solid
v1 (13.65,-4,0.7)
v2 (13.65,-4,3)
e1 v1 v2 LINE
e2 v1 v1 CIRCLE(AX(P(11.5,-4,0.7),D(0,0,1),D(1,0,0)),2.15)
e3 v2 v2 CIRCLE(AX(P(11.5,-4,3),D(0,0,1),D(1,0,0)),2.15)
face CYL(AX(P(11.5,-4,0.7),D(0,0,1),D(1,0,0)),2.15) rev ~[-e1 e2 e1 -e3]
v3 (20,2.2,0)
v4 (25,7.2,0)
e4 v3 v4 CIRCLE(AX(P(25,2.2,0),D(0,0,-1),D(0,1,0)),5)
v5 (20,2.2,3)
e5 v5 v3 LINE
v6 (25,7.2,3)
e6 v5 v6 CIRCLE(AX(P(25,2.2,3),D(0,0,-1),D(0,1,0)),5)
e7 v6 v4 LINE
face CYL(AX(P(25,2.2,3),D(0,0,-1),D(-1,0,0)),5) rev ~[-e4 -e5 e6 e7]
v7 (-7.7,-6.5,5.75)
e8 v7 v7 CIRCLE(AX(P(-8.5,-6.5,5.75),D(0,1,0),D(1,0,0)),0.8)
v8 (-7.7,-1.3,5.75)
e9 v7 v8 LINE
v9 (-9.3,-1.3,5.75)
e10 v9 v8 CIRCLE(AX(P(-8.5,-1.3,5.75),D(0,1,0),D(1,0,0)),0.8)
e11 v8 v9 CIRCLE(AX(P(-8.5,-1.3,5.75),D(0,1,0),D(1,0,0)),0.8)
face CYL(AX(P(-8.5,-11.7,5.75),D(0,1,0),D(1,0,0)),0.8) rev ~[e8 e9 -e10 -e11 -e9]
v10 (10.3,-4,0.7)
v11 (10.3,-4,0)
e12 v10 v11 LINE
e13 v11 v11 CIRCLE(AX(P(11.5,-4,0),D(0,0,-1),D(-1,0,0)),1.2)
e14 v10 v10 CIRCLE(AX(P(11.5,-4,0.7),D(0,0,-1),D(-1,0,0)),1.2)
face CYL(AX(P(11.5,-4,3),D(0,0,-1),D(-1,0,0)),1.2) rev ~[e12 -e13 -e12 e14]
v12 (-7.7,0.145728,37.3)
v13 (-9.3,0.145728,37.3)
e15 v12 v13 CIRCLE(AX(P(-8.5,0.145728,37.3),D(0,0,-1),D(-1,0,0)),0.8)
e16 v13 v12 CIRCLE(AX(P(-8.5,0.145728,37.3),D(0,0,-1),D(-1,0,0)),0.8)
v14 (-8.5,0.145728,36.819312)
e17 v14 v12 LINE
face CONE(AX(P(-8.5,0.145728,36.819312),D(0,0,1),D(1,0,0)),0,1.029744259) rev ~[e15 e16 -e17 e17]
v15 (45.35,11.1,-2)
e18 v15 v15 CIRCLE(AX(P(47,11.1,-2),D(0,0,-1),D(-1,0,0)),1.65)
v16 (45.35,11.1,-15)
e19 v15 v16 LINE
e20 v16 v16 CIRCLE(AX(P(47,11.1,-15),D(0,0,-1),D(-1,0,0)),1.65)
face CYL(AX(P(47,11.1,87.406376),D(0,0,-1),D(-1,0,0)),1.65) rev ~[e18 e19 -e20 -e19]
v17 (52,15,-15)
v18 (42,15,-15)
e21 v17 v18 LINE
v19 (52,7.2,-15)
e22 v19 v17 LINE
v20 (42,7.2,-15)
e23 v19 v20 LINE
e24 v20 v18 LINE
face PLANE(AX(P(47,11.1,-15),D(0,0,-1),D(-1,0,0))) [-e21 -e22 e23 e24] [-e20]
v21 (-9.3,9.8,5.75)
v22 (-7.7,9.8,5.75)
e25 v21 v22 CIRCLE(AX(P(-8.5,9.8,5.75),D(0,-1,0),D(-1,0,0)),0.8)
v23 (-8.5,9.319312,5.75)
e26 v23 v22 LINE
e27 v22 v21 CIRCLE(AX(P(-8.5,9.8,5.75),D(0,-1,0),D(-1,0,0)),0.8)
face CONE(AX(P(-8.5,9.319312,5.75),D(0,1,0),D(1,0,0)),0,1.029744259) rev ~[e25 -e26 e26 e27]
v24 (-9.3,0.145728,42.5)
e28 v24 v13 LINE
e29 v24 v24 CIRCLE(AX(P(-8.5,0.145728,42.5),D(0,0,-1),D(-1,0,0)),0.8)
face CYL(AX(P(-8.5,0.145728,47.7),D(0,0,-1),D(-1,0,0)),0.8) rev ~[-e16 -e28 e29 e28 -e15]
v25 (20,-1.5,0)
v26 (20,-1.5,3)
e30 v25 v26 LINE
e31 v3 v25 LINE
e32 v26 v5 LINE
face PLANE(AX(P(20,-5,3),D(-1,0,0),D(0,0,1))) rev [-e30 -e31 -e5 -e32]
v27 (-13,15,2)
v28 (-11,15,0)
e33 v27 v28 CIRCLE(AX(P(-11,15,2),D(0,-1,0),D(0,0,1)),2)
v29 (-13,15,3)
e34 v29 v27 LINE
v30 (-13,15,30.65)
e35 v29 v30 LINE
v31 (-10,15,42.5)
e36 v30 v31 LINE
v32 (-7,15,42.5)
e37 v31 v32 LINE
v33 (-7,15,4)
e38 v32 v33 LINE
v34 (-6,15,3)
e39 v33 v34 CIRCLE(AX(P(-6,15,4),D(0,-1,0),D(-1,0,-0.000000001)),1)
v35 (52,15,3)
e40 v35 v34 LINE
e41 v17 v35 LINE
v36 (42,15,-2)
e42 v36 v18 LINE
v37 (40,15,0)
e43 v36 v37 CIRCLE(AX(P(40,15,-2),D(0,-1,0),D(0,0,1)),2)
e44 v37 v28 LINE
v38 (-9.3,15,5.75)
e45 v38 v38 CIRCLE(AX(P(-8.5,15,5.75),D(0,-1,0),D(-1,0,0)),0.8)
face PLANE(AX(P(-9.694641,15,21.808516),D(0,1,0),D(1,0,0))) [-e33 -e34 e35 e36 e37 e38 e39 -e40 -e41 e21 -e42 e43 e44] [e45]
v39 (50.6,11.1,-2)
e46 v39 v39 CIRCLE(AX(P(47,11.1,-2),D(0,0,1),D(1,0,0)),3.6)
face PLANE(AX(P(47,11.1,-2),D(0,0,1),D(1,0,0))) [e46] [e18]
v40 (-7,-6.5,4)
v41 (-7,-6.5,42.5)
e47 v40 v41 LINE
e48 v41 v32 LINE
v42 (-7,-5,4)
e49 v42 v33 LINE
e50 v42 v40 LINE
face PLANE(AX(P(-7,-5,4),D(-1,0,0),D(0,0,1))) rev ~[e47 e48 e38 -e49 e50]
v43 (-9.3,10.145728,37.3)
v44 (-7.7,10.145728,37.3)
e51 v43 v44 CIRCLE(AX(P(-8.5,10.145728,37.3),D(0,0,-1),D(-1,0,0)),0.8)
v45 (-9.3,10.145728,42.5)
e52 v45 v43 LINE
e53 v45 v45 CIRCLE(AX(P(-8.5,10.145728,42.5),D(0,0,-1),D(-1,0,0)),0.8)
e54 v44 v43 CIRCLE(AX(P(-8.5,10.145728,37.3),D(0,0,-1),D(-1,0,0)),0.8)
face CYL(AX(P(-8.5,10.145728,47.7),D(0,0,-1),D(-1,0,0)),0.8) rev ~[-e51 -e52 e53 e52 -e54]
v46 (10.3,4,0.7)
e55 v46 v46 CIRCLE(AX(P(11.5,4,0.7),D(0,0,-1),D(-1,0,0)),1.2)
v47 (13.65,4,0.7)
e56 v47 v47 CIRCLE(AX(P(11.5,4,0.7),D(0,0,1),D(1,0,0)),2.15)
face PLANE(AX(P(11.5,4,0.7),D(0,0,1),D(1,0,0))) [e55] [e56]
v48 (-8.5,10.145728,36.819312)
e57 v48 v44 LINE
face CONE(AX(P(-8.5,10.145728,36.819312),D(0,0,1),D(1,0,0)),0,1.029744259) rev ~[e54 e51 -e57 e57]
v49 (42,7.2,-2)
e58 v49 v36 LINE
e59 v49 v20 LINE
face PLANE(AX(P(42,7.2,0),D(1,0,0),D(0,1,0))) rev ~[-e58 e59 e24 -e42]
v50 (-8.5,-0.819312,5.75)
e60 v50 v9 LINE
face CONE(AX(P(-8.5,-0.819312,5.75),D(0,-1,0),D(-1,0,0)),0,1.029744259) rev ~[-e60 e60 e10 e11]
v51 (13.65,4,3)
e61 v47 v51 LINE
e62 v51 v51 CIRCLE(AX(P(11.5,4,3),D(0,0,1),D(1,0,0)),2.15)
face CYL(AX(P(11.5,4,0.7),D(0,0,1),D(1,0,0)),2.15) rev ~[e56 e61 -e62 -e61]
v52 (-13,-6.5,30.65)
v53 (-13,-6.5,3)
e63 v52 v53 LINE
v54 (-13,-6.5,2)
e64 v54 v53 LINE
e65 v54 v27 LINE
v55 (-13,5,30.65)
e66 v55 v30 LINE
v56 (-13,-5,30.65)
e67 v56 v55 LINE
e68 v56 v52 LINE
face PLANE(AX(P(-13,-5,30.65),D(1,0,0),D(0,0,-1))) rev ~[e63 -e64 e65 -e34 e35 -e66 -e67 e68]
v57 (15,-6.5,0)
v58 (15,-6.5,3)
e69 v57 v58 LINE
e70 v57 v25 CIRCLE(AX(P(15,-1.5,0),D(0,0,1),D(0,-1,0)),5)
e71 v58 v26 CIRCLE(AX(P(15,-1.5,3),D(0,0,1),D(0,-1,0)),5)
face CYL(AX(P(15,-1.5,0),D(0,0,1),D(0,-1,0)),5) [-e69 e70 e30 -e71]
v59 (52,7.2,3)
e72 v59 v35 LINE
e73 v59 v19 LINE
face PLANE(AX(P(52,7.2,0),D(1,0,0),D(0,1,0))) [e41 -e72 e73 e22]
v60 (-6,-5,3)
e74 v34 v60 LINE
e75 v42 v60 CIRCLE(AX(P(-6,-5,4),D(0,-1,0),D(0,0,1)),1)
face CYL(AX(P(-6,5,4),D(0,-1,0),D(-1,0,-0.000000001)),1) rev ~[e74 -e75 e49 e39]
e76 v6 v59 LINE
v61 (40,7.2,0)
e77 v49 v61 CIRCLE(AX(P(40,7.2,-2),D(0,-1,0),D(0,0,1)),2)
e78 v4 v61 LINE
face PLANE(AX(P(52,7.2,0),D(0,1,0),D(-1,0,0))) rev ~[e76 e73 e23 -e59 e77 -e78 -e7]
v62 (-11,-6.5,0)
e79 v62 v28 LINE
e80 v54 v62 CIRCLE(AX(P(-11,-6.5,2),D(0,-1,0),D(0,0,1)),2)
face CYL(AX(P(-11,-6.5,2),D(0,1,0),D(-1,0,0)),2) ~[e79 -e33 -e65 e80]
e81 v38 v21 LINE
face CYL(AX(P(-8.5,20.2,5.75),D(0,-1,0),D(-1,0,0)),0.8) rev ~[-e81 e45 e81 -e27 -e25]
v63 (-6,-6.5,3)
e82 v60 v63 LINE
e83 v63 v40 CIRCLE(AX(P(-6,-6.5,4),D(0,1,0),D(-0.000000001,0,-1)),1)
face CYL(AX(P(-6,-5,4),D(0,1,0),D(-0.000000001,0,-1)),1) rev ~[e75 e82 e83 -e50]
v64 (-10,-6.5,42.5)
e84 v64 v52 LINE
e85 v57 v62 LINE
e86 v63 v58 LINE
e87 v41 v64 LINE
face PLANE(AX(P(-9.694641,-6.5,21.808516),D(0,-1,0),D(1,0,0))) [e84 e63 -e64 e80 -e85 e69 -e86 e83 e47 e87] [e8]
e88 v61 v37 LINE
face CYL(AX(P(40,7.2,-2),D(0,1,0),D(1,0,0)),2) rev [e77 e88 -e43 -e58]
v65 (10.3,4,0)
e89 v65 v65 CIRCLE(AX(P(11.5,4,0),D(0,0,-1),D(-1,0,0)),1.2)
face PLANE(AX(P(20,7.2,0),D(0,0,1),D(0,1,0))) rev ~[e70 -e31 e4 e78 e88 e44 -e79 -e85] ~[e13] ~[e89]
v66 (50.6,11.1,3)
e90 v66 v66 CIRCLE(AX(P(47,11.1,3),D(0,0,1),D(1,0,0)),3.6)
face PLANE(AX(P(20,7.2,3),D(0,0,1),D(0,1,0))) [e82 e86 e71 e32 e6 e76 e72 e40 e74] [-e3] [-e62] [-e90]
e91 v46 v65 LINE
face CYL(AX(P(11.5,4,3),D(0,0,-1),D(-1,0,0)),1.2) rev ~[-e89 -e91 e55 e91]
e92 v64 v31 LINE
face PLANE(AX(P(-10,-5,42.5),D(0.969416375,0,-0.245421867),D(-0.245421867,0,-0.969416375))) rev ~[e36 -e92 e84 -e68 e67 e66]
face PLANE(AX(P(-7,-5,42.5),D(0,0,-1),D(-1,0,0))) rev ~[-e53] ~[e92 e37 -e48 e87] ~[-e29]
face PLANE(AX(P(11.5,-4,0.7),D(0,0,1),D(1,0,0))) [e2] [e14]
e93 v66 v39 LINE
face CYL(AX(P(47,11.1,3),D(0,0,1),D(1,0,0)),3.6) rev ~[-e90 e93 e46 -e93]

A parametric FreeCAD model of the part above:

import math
import FreeCAD as App
import Part
import Sketcher
Q = App.Units.Quantity


def edges_at(feature, points):
    """Names of the edges that pass closest to the given points."""
    edges = feature.Shape.Edges
    near = lambda p: min(range(len(edges)), key=lambda i: edges[i].distToShape(Part.Vertex(*p))[0])
    return sorted({f"Edge{near(p) + 1}" for p in points})


def add_polygon(sketch, points):
    """Adds a closed chain of lines whose ends are joined by coincident constraints."""
    first, n = sketch.GeometryCount, len(points)
    for a, b in zip(points, points[1:] + points[:1]):
        sketch.addGeometry(Part.LineSegment(App.Vector(*a, 0), App.Vector(*b, 0)), False)
    for i in range(n):
        sketch.addConstraint(Sketcher.Constraint("Coincident", first + i, 2, first + (i + 1) % n, 1))

doc = App.newDocument("Part")
body = doc.addObject("PartDesign::Body", "Body")

# Sketch on XY plane
sketch1 = body.newObject("Sketcher::SketchObject", "Sketch")
sketch1.AttachmentSupport = (doc.getObject("XY_Plane"), [""])
sketch1.MapMode = "FlatFace"
add_polygon(sketch1, [(-20, 5), (-20, -5), (20, -5), (20, 5)])  # lines 0-3
sketch1.addConstraint([
    Sketcher.Constraint("Vertical", 0),
    Sketcher.Constraint("Horizontal", 1),
    Sketcher.Constraint("Vertical", 2),
    Sketcher.Constraint("Horizontal", 3),
    Sketcher.Constraint("Symmetric", 0, 2, 2, 2, -1, 1),
    Sketcher.Constraint("DistanceX", 1, 1, 1, 2, Q("40 mm")),
    Sketcher.Constraint("DistanceY", 0, 2, 0, 1, Q("10 mm")),
])
pad1 = body.newObject("PartDesign::Pad", "Pad")
pad1.Profile = sketch1
pad1.Length = 3

# Sketch on XY plane
sketch2 = body.newObject("Sketcher::SketchObject", "Sketch001")
sketch2.AttachmentSupport = (doc.getObject("XY_Plane"), [""])
sketch2.MapMode = "FlatFace"
sketch2.AttachmentOffset = App.Placement(App.Vector(0, 0, 3), App.Rotation())
add_polygon(sketch2, [(-10, 5), (-10, -5), (-7, -5), (-7, 5)])  # lines 0-3
sketch2.addConstraint([
    Sketcher.Constraint("Vertical", 0),
    Sketcher.Constraint("Horizontal", 1),
    Sketcher.Constraint("Vertical", 2),
    Sketcher.Constraint("Horizontal", 3),
    Sketcher.Constraint("DistanceX", 1, 1, 1, 2, Q("3 mm")),
    Sketcher.Constraint("DistanceY", 0, 2, 0, 1, Q("10 mm")),
    Sketcher.Constraint("DistanceX", 0, 2, -1, 1, Q("10 mm")),
    Sketcher.Constraint("DistanceY", 0, 2, -1, 1, Q("5 mm")),
])
pad2 = body.newObject("PartDesign::Pad", "Pad001")
pad2.Profile = sketch2
pad2.Length = 39.5

# Sketch on XZ plane
sketch3 = body.newObject("Sketcher::SketchObject", "Sketch002")
sketch3.AttachmentSupport = (doc.getObject("XZ_Plane"), [""])
sketch3.MapMode = "FlatFace"
sketch3.AttachmentOffset = App.Placement(App.Vector(0, 0, -5), App.Rotation())
add_polygon(sketch3, [(-20, 3), (-10, 42.5), (-10, 30.3), (-16.9, 3)])  # lines 0-3
sketch3.addConstraint([
    Sketcher.Constraint("Vertical", 1),
    Sketcher.Constraint("Horizontal", 3),
    Sketcher.Constraint("Parallel", 0, 2),
    Sketcher.Constraint("DistanceX", 0, 2, -1, 1, Q("10 mm")),
    Sketcher.Constraint("DistanceY", -1, 1, 2, 2, Q("3 mm")),
    Sketcher.Constraint("DistanceX", 3, 2, -1, 1, Q("20 mm")),
    Sketcher.Constraint("DistanceY", -1, 1, 0, 2, Q("42.5 mm")),
    Sketcher.Constraint("DistanceY", 1, 2, 1, 1, Q("12.22385 mm")),
])
pad3 = body.newObject("PartDesign::Pad", "Pad002")
pad3.Profile = sketch3
pad3.Length = 10
doc.recompute()

fillet = body.newObject("PartDesign::Fillet", "Fillet")
fillet.Base = (pad3, edges_at(pad3, [(-7, 0, 3)]))
fillet.Radius = 1

# Sketch on XZ plane
sketch4 = body.newObject("Sketcher::SketchObject", "Sketch003")
sketch4.AttachmentSupport = (doc.getObject("XZ_Plane"), [""])
sketch4.MapMode = "FlatFace"
sketch4.AttachmentOffset = App.Placement(App.Vector(0, 0, -5), App.Rotation())
add_polygon(sketch4, [(-20, 0), (-20, 3), (20, 3), (20, 0)])  # lines 0-3
sketch4.addConstraint([
    Sketcher.Constraint("Vertical", 0),
    Sketcher.Constraint("Horizontal", 1),
    Sketcher.Constraint("Vertical", 2),
    Sketcher.Constraint("Horizontal", 3),
    Sketcher.Constraint("Symmetric", 2, 2, 3, 2, -1, 1),
    Sketcher.Constraint("DistanceX", 1, 1, 1, 2, Q("40 mm")),
    Sketcher.Constraint("DistanceY", 0, 1, 0, 2, Q("3 mm")),
])
pad4 = body.newObject("PartDesign::Pad", "Pad003")
pad4.Profile = sketch4
pad4.Length = 10
pad4.Reversed = True
doc.recompute()

mirrored = body.newObject("PartDesign::Mirrored", "Mirrored")
mirrored.Originals = [pad4]
mirrored.MirrorPlane = (doc.getObject("XZ_Plane"), [""])
body.Tip = mirrored

# Sketch on XY plane
sketch5 = body.newObject("Sketcher::SketchObject", "Sketch004")
sketch5.AttachmentSupport = (doc.getObject("XY_Plane"), [""])
sketch5.MapMode = "FlatFace"
sketch5.AttachmentOffset = App.Placement(App.Vector(0, 0, 3), App.Rotation())
sketch5.addGeometry([
    Part.Circle(App.Vector(11.5, 4, 0), App.Vector(0, 0, 1), 1.2),
    Part.Circle(App.Vector(11.5, -4, 0), App.Vector(0, 0, 1), 1.2),
], False)
sketch5.addConstraint([
    Sketcher.Constraint("Equal", 0, 1),
    Sketcher.Constraint("Symmetric", 0, 3, 1, 3, -1),
    Sketcher.Constraint("Diameter", 0, Q("2.4 mm")),
    Sketcher.Constraint("DistanceY", -1, 1, 0, 3, Q("4 mm")),
    Sketcher.Constraint("DistanceX", -1, 1, 0, 3, Q("11.5 mm")),
])
doc.recompute()
hole = body.newObject("PartDesign::Hole", "Hole")
hole.Profile = sketch5
hole.ThreadType = "None"
hole.Diameter = 2.4
hole.DepthType = "Dimension"
hole.Depth = 3.2
hole.DrillPoint = "Angled"
hole.DrillPointAngle = 118
hole.HoleCutType = "Counterbore"
hole.HoleCutDiameter = 4.3
hole.HoleCutDepth = 2.3

# Sketch on XY plane
sketch6 = body.newObject("Sketcher::SketchObject", "Sketch005")
sketch6.AttachmentSupport = (doc.getObject("XY_Plane"), [""])
sketch6.MapMode = "FlatFace"
sketch6.AttachmentOffset = App.Placement(App.Vector(0, 0, 42.5), App.Rotation())
sketch6.addGeometry([
    Part.Circle(App.Vector(-8.5, 0.1, 0), App.Vector(0, 0, 1), 0.8),
    Part.Circle(App.Vector(-8.5, 10.1, 0), App.Vector(0, 0, 1), 0.8),
], False)
sketch6.addConstraint([
    Sketcher.Constraint("Equal", 0, 1),
    Sketcher.Constraint("Vertical", 0, 3, 1, 3),
    Sketcher.Constraint("Diameter", 0, Q("1.6 mm")),
    Sketcher.Constraint("DistanceY", 0, 3, 1, 3, Q("10 mm")),
    Sketcher.Constraint("DistanceX", 0, 3, -1, 1, Q("8.5 mm")),
    Sketcher.Constraint("DistanceY", -1, 1, 0, 3, Q("0.145728 mm")),
])
doc.recompute()
hole2 = body.newObject("PartDesign::Hole", "Hole001")
hole2.Profile = sketch6
hole2.ThreadType = "None"
hole2.Diameter = 1.6
hole2.DepthType = "Dimension"
hole2.Depth = 5.2
hole2.DrillPoint = "Angled"
hole2.DrillPointAngle = 118

# Sketch on XY plane
sketch7 = body.newObject("Sketcher::SketchObject", "Sketch006")
sketch7.AttachmentSupport = (doc.getObject("XY_Plane"), [""])
sketch7.MapMode = "FlatFace"
add_polygon(sketch7, [(20, -6), (20, -15), (-20, -15), (-20, -6)])  # lines 0-3
sketch7.addConstraint([
    Sketcher.Constraint("Vertical", 0),
    Sketcher.Constraint("Horizontal", 1),
    Sketcher.Constraint("Vertical", 2),
    Sketcher.Constraint("Horizontal", 3),
    Sketcher.Constraint("DistanceX", 1, 2, 1, 1, Q("40 mm")),
    Sketcher.Constraint("DistanceY", 0, 2, 0, 1, Q("8.5 mm")),
    Sketcher.Constraint("DistanceX", -1, 1, 0, 2, Q("20 mm")),
    Sketcher.Constraint("DistanceY", 0, 2, -1, 1, Q("15 mm")),
])
pocket1 = body.newObject("PartDesign::Pocket", "Pocket")
pocket1.Profile = sketch7
pocket1.Length = 10
pocket1.Reversed = True

# Sketch on XZ plane
sketch8 = body.newObject("Sketcher::SketchObject", "Sketch007")
sketch8.AttachmentSupport = (doc.getObject("XZ_Plane"), [""])
sketch8.MapMode = "FlatFace"
sketch8.AttachmentOffset = App.Placement(App.Vector(0, 0, -5), App.Rotation())
add_polygon(sketch8, [(-17, 3), (-10, 30), (-10, 3)])  # lines 0-2
sketch8.addConstraint([
    Sketcher.Constraint("Vertical", 1),
    Sketcher.Constraint("Horizontal", 2),
    Sketcher.Constraint("DistanceX", 0, 2, -1, 1, Q("10 mm")),
    Sketcher.Constraint("DistanceY", -1, 1, 1, 2, Q("3 mm")),
    Sketcher.Constraint("DistanceY", 1, 2, 1, 1, Q("27.27615 mm")),
    Sketcher.Constraint("Distance", 0, Q("28.136672 mm")),
])
pad5 = body.newObject("PartDesign::Pad", "Pad004")
pad5.Profile = sketch8
pad5.Length = 10

# Sketch on XZ plane
sketch9 = body.newObject("Sketcher::SketchObject", "Sketch008")
sketch9.AttachmentSupport = (doc.getObject("XZ_Plane"), [""])
sketch9.MapMode = "FlatFace"
add_polygon(sketch9, [(-22, -4), (-22, 39), (-13, 39), (-13, -4)])  # lines 0-3
sketch9.addConstraint([
    Sketcher.Constraint("Vertical", 0),
    Sketcher.Constraint("Horizontal", 1),
    Sketcher.Constraint("Vertical", 2),
    Sketcher.Constraint("Horizontal", 3),
    Sketcher.Constraint("DistanceX", 1, 2, -1, 1, Q("13 mm")),
    Sketcher.Constraint("DistanceY", 0, 1, 0, 2, Q("43.05357 mm")),
    Sketcher.Constraint("DistanceX", 1, 1, 1, 2, Q("9.259374 mm")),
    Sketcher.Constraint("DistanceY", -1, 1, 0, 2, Q("39.313336 mm")),
])
pocket2 = body.newObject("PartDesign::Pocket", "Pocket001")
pocket2.Profile = sketch9
pocket2.Length = 40
pocket2.Midplane = True

# Sketch on YZ plane
sketch10 = body.newObject("Sketcher::SketchObject", "Sketch009")
sketch10.AttachmentSupport = (doc.getObject("YZ_Plane"), [""])
sketch10.MapMode = "FlatFace"
sketch10.AttachmentOffset = App.Placement(App.Vector(0, 0, 20), App.Rotation())
add_polygon(sketch10, [(15, 3), (7.2, 3), (7.2, 0), (15, 0)])  # lines 0-3
sketch10.addConstraint([
    Sketcher.Constraint("Horizontal", 0),
    Sketcher.Constraint("Vertical", 1),
    Sketcher.Constraint("Horizontal", 2),
    Sketcher.Constraint("Vertical", 3),
    Sketcher.Constraint("PointOnObject", 1, 2, -1),
    Sketcher.Constraint("DistanceY", 1, 2, 1, 1, Q("3 mm")),
    Sketcher.Constraint("DistanceX", 0, 2, 0, 1, Q("7.8 mm")),
    Sketcher.Constraint("DistanceX", -1, 1, 2, 2, Q("15 mm")),
])
pad6 = body.newObject("PartDesign::Pad", "Pad005")
pad6.Profile = sketch10
pad6.Length = 32

# Sketch on XY plane
sketch11 = body.newObject("Sketcher::SketchObject", "Sketch010")
sketch11.AttachmentSupport = (doc.getObject("XY_Plane"), [""])
sketch11.MapMode = "FlatFace"
add_polygon(sketch11, [(52, 15), (52, 7), (42, 7), (42, 15)])  # lines 0-3
sketch11.addConstraint([
    Sketcher.Constraint("Vertical", 0),
    Sketcher.Constraint("Horizontal", 1),
    Sketcher.Constraint("Vertical", 2),
    Sketcher.Constraint("Horizontal", 3),
    Sketcher.Constraint("DistanceX", 1, 2, 1, 1, Q("10 mm")),
    Sketcher.Constraint("DistanceY", 0, 2, 0, 1, Q("7.8 mm")),
    Sketcher.Constraint("DistanceX", -1, 1, 0, 2, Q("52 mm")),
    Sketcher.Constraint("DistanceY", -1, 1, 2, 2, Q("15 mm")),
])
pad7 = body.newObject("PartDesign::Pad", "Pad006")
pad7.Profile = sketch11
pad7.Length = 15
pad7.Reversed = True

# Sketch on XY plane
sketch12 = body.newObject("Sketcher::SketchObject", "Sketch011")
sketch12.AttachmentSupport = (doc.getObject("XY_Plane"), [""])
sketch12.MapMode = "FlatFace"
sketch12.AttachmentOffset = App.Placement(App.Vector(0, 0, 3), App.Rotation())
sketch12.addGeometry(Part.Circle(App.Vector(47, 11.1, 0), App.Vector(0, 0, 1), 3.6), False)
sketch12.addConstraint([
    Sketcher.Constraint("Diameter", 0, Q("7.2 mm")),
    Sketcher.Constraint("DistanceX", -1, 1, 0, 3, Q("47 mm")),
    Sketcher.Constraint("DistanceY", -1, 1, 0, 3, Q("11.1 mm")),
])
pocket3 = body.newObject("PartDesign::Pocket", "Pocket002")
pocket3.Profile = sketch12
pocket3.Length = 5

# Sketch on XY plane
sketch13 = body.newObject("Sketcher::SketchObject", "Sketch012")
sketch13.AttachmentSupport = (doc.getObject("XY_Plane"), [""])
sketch13.MapMode = "FlatFace"
sketch13.AttachmentOffset = App.Placement(App.Vector(0, 0, -2), App.Rotation())
sketch13.addGeometry(Part.Circle(App.Vector(47, 11.1, 0), App.Vector(0, 0, 1), 1.6), False)
sketch13.addConstraint([
    Sketcher.Constraint("Diameter", 0, Q("3.3 mm")),
    Sketcher.Constraint("DistanceX", -1, 1, 0, 3, Q("47 mm")),
    Sketcher.Constraint("DistanceY", -1, 1, 0, 3, Q("11.1 mm")),
])
doc.recompute()
hole3 = body.newObject("PartDesign::Hole", "Hole002")
hole3.Profile = sketch13
hole3.ThreadType = "None"
hole3.Diameter = 3.3
hole3.DepthType = "ThroughAll"
doc.recompute()

fillet2 = body.newObject("PartDesign::Fillet", "Fillet001")
fillet2.Base = (hole3, edges_at(hole3, [(42, 11.1, 0)]))
fillet2.Radius = 2

# Sketch on XZ plane
sketch14 = body.newObject("Sketcher::SketchObject", "Sketch013")
sketch14.AttachmentSupport = (doc.getObject("XZ_Plane"), [""])
sketch14.MapMode = "FlatFace"
sketch14.AttachmentOffset = App.Placement(App.Vector(0, 0, -5), App.Rotation())
sketch14.addGeometry([
    Part.LineSegment(App.Vector(-6, 3, 0), App.Vector(-13, 3, 0)),  # 0
    Part.LineSegment(App.Vector(-13, 3, 0), App.Vector(-13, 30.6, 0)),  # 1
    Part.LineSegment(App.Vector(-13, 30.6, 0), App.Vector(-10, 42.5, 0)),  # 2
    Part.LineSegment(App.Vector(-10, 42.5, 0), App.Vector(-7, 42.5, 0)),  # 3
    Part.LineSegment(App.Vector(-7, 42.5, 0), App.Vector(-7, 4, 0)),  # 4
    Part.ArcOfCircle(Part.Circle(App.Vector(-6, 4, 0), App.Vector(0, 0, 1), 1), math.radians(-180), math.radians(-90)),  # 5
], False)
sketch14.addConstraint([
    Sketcher.Constraint("Coincident", 0, 2, 1, 1),
    Sketcher.Constraint("Coincident", 1, 2, 2, 1),
    Sketcher.Constraint("Coincident", 2, 2, 3, 1),
    Sketcher.Constraint("Coincident", 3, 2, 4, 1),
    Sketcher.Constraint("Tangent", 4, 2, 5, 1),
    Sketcher.Constraint("Tangent", 5, 2, 0, 1),
    Sketcher.Constraint("Horizontal", 0),
    Sketcher.Constraint("Vertical", 1),
    Sketcher.Constraint("Horizontal", 3),
    Sketcher.Constraint("Vertical", 4),
    Sketcher.Constraint("Radius", 5, Q("1 mm")),
    Sketcher.Constraint("DistanceX", 0, 2, 0, 1, Q("7 mm")),
    Sketcher.Constraint("DistanceX", 3, 1, 3, 2, Q("3 mm")),
    Sketcher.Constraint("DistanceY", 4, 2, 4, 1, Q("38.5 mm")),
    Sketcher.Constraint("DistanceX", 5, 3, -1, 1, Q("6 mm")),
    Sketcher.Constraint("DistanceY", -1, 1, 5, 3, Q("4 mm")),
    Sketcher.Constraint("DistanceY", 1, 1, 1, 2, Q("27.65 mm")),
])
pad8 = body.newObject("PartDesign::Pad", "Pad007")
pad8.Profile = sketch14
pad8.Length = 10
pad8.Reversed = True

# Sketch on XZ plane
sketch15 = body.newObject("Sketcher::SketchObject", "Sketch014")
sketch15.AttachmentSupport = (doc.getObject("XZ_Plane"), [""])
sketch15.MapMode = "FlatFace"
sketch15.AttachmentOffset = App.Placement(App.Vector(0, 0, 5), App.Rotation())
sketch15.addGeometry([
    Part.LineSegment(App.Vector(-10, 42.5, 0), App.Vector(-13, 30.6, 0)),  # 0
    Part.LineSegment(App.Vector(-13, 30.6, 0), App.Vector(-13, 3, 0)),  # 1
    Part.LineSegment(App.Vector(-13, 3, 0), App.Vector(-6, 3, 0)),  # 2
    Part.ArcOfCircle(Part.Circle(App.Vector(-6, 4, 0), App.Vector(0, 0, 1), 1), math.radians(-180), math.radians(-90)),  # 3
    Part.LineSegment(App.Vector(-7, 4, 0), App.Vector(-7, 42.5, 0)),  # 4
    Part.LineSegment(App.Vector(-7, 42.5, 0), App.Vector(-10, 42.5, 0)),  # 5
], False)
sketch15.addConstraint([
    Sketcher.Constraint("Coincident", 0, 2, 1, 1),
    Sketcher.Constraint("Coincident", 1, 2, 2, 1),
    Sketcher.Constraint("Tangent", 2, 2, 3, 2),
    Sketcher.Constraint("Tangent", 3, 1, 4, 1),
    Sketcher.Constraint("Coincident", 4, 2, 5, 1),
    Sketcher.Constraint("Coincident", 5, 2, 0, 1),
    Sketcher.Constraint("Vertical", 1),
    Sketcher.Constraint("Horizontal", 2),
    Sketcher.Constraint("Vertical", 4),
    Sketcher.Constraint("Horizontal", 5),
    Sketcher.Constraint("Radius", 3, Q("1 mm")),
    Sketcher.Constraint("DistanceX", 2, 1, 2, 2, Q("7 mm")),
    Sketcher.Constraint("DistanceX", 5, 2, 5, 1, Q("3 mm")),
    Sketcher.Constraint("DistanceY", 4, 1, 4, 2, Q("38.5 mm")),
    Sketcher.Constraint("DistanceX", 3, 3, -1, 1, Q("6 mm")),
    Sketcher.Constraint("DistanceY", -1, 1, 3, 3, Q("4 mm")),
    Sketcher.Constraint("DistanceY", 1, 2, 1, 1, Q("27.65 mm")),
])
pad9 = body.newObject("PartDesign::Pad", "Pad008")
pad9.Profile = sketch15
pad9.Length = 1.5

# Sketch on XY plane
sketch16 = body.newObject("Sketcher::SketchObject", "Sketch015")
sketch16.AttachmentSupport = (doc.getObject("XY_Plane"), [""])
sketch16.MapMode = "FlatFace"
sketch16.AttachmentOffset = App.Placement(App.Vector(0, 0, 42.5), App.Rotation())
sketch16.addGeometry(Part.Circle(App.Vector(-8.5, 10.1, 0), App.Vector(0, 0, 1), 0.8), False)
sketch16.addConstraint([
    Sketcher.Constraint("Diameter", 0, Q("1.6 mm")),
    Sketcher.Constraint("DistanceX", 0, 3, -1, 1, Q("8.5 mm")),
    Sketcher.Constraint("DistanceY", -1, 1, 0, 3, Q("10.145728 mm")),
])
doc.recompute()
hole4 = body.newObject("PartDesign::Hole", "Hole003")
hole4.Profile = sketch16
hole4.ThreadType = "None"
hole4.Diameter = 1.6
hole4.DepthType = "Dimension"
hole4.Depth = 5.2
hole4.DrillPoint = "Angled"
hole4.DrillPointAngle = 118

# Sketch on XZ plane
sketch17 = body.newObject("Sketcher::SketchObject", "Sketch016")
sketch17.AttachmentSupport = (doc.getObject("XZ_Plane"), [""])
sketch17.MapMode = "FlatFace"
sketch17.AttachmentOffset = App.Placement(App.Vector(0, 0, -15), App.Rotation())
sketch17.addGeometry(Part.Circle(App.Vector(-8.5, 5.8, 0), App.Vector(0, 0, 1), 0.8), False)
sketch17.addConstraint([
    Sketcher.Constraint("Diameter", 0, Q("1.6 mm")),
    Sketcher.Constraint("DistanceX", 0, 3, -1, 1, Q("8.5 mm")),
    Sketcher.Constraint("DistanceY", -1, 1, 0, 3, Q("5.75 mm")),
])
doc.recompute()
hole5 = body.newObject("PartDesign::Hole", "Hole004")
hole5.Profile = sketch17
hole5.ThreadType = "None"
hole5.Diameter = 1.6
hole5.DepthType = "Dimension"
hole5.Depth = 5.2
hole5.DrillPoint = "Angled"
hole5.DrillPointAngle = 118
hole5.Reversed = True

# Sketch on XZ plane
sketch18 = body.newObject("Sketcher::SketchObject", "Sketch017")
sketch18.AttachmentSupport = (doc.getObject("XZ_Plane"), [""])
sketch18.MapMode = "FlatFace"
sketch18.AttachmentOffset = App.Placement(App.Vector(0, 0, 6.5), App.Rotation())
sketch18.addGeometry(Part.Circle(App.Vector(-8.5, 5.8, 0), App.Vector(0, 0, 1), 0.8), False)
sketch18.addConstraint([
    Sketcher.Constraint("Diameter", 0, Q("1.6 mm")),
    Sketcher.Constraint("DistanceX", 0, 3, -1, 1, Q("8.5 mm")),
    Sketcher.Constraint("DistanceY", -1, 1, 0, 3, Q("5.75 mm")),
])
doc.recompute()
hole6 = body.newObject("PartDesign::Hole", "Hole005")
hole6.Profile = sketch18
hole6.ThreadType = "None"
hole6.Diameter = 1.6
hole6.DepthType = "Dimension"
hole6.Depth = 5.2
hole6.DrillPoint = "Angled"
hole6.DrillPointAngle = 118
doc.recompute()

fillet3 = body.newObject("PartDesign::Fillet", "Fillet002")
fillet3.Base = (hole6, edges_at(hole6, [(-13, 4.25, 0)]))
fillet3.Radius = 2
doc.recompute()

fillet4 = body.newObject("PartDesign::Fillet", "Fillet003")
fillet4.Base = (fillet3, edges_at(fillet3, [(20, -6.5, 1.5), (20, 7.2, 1.5)]))
fillet4.Radius = 5

doc.recompute()
